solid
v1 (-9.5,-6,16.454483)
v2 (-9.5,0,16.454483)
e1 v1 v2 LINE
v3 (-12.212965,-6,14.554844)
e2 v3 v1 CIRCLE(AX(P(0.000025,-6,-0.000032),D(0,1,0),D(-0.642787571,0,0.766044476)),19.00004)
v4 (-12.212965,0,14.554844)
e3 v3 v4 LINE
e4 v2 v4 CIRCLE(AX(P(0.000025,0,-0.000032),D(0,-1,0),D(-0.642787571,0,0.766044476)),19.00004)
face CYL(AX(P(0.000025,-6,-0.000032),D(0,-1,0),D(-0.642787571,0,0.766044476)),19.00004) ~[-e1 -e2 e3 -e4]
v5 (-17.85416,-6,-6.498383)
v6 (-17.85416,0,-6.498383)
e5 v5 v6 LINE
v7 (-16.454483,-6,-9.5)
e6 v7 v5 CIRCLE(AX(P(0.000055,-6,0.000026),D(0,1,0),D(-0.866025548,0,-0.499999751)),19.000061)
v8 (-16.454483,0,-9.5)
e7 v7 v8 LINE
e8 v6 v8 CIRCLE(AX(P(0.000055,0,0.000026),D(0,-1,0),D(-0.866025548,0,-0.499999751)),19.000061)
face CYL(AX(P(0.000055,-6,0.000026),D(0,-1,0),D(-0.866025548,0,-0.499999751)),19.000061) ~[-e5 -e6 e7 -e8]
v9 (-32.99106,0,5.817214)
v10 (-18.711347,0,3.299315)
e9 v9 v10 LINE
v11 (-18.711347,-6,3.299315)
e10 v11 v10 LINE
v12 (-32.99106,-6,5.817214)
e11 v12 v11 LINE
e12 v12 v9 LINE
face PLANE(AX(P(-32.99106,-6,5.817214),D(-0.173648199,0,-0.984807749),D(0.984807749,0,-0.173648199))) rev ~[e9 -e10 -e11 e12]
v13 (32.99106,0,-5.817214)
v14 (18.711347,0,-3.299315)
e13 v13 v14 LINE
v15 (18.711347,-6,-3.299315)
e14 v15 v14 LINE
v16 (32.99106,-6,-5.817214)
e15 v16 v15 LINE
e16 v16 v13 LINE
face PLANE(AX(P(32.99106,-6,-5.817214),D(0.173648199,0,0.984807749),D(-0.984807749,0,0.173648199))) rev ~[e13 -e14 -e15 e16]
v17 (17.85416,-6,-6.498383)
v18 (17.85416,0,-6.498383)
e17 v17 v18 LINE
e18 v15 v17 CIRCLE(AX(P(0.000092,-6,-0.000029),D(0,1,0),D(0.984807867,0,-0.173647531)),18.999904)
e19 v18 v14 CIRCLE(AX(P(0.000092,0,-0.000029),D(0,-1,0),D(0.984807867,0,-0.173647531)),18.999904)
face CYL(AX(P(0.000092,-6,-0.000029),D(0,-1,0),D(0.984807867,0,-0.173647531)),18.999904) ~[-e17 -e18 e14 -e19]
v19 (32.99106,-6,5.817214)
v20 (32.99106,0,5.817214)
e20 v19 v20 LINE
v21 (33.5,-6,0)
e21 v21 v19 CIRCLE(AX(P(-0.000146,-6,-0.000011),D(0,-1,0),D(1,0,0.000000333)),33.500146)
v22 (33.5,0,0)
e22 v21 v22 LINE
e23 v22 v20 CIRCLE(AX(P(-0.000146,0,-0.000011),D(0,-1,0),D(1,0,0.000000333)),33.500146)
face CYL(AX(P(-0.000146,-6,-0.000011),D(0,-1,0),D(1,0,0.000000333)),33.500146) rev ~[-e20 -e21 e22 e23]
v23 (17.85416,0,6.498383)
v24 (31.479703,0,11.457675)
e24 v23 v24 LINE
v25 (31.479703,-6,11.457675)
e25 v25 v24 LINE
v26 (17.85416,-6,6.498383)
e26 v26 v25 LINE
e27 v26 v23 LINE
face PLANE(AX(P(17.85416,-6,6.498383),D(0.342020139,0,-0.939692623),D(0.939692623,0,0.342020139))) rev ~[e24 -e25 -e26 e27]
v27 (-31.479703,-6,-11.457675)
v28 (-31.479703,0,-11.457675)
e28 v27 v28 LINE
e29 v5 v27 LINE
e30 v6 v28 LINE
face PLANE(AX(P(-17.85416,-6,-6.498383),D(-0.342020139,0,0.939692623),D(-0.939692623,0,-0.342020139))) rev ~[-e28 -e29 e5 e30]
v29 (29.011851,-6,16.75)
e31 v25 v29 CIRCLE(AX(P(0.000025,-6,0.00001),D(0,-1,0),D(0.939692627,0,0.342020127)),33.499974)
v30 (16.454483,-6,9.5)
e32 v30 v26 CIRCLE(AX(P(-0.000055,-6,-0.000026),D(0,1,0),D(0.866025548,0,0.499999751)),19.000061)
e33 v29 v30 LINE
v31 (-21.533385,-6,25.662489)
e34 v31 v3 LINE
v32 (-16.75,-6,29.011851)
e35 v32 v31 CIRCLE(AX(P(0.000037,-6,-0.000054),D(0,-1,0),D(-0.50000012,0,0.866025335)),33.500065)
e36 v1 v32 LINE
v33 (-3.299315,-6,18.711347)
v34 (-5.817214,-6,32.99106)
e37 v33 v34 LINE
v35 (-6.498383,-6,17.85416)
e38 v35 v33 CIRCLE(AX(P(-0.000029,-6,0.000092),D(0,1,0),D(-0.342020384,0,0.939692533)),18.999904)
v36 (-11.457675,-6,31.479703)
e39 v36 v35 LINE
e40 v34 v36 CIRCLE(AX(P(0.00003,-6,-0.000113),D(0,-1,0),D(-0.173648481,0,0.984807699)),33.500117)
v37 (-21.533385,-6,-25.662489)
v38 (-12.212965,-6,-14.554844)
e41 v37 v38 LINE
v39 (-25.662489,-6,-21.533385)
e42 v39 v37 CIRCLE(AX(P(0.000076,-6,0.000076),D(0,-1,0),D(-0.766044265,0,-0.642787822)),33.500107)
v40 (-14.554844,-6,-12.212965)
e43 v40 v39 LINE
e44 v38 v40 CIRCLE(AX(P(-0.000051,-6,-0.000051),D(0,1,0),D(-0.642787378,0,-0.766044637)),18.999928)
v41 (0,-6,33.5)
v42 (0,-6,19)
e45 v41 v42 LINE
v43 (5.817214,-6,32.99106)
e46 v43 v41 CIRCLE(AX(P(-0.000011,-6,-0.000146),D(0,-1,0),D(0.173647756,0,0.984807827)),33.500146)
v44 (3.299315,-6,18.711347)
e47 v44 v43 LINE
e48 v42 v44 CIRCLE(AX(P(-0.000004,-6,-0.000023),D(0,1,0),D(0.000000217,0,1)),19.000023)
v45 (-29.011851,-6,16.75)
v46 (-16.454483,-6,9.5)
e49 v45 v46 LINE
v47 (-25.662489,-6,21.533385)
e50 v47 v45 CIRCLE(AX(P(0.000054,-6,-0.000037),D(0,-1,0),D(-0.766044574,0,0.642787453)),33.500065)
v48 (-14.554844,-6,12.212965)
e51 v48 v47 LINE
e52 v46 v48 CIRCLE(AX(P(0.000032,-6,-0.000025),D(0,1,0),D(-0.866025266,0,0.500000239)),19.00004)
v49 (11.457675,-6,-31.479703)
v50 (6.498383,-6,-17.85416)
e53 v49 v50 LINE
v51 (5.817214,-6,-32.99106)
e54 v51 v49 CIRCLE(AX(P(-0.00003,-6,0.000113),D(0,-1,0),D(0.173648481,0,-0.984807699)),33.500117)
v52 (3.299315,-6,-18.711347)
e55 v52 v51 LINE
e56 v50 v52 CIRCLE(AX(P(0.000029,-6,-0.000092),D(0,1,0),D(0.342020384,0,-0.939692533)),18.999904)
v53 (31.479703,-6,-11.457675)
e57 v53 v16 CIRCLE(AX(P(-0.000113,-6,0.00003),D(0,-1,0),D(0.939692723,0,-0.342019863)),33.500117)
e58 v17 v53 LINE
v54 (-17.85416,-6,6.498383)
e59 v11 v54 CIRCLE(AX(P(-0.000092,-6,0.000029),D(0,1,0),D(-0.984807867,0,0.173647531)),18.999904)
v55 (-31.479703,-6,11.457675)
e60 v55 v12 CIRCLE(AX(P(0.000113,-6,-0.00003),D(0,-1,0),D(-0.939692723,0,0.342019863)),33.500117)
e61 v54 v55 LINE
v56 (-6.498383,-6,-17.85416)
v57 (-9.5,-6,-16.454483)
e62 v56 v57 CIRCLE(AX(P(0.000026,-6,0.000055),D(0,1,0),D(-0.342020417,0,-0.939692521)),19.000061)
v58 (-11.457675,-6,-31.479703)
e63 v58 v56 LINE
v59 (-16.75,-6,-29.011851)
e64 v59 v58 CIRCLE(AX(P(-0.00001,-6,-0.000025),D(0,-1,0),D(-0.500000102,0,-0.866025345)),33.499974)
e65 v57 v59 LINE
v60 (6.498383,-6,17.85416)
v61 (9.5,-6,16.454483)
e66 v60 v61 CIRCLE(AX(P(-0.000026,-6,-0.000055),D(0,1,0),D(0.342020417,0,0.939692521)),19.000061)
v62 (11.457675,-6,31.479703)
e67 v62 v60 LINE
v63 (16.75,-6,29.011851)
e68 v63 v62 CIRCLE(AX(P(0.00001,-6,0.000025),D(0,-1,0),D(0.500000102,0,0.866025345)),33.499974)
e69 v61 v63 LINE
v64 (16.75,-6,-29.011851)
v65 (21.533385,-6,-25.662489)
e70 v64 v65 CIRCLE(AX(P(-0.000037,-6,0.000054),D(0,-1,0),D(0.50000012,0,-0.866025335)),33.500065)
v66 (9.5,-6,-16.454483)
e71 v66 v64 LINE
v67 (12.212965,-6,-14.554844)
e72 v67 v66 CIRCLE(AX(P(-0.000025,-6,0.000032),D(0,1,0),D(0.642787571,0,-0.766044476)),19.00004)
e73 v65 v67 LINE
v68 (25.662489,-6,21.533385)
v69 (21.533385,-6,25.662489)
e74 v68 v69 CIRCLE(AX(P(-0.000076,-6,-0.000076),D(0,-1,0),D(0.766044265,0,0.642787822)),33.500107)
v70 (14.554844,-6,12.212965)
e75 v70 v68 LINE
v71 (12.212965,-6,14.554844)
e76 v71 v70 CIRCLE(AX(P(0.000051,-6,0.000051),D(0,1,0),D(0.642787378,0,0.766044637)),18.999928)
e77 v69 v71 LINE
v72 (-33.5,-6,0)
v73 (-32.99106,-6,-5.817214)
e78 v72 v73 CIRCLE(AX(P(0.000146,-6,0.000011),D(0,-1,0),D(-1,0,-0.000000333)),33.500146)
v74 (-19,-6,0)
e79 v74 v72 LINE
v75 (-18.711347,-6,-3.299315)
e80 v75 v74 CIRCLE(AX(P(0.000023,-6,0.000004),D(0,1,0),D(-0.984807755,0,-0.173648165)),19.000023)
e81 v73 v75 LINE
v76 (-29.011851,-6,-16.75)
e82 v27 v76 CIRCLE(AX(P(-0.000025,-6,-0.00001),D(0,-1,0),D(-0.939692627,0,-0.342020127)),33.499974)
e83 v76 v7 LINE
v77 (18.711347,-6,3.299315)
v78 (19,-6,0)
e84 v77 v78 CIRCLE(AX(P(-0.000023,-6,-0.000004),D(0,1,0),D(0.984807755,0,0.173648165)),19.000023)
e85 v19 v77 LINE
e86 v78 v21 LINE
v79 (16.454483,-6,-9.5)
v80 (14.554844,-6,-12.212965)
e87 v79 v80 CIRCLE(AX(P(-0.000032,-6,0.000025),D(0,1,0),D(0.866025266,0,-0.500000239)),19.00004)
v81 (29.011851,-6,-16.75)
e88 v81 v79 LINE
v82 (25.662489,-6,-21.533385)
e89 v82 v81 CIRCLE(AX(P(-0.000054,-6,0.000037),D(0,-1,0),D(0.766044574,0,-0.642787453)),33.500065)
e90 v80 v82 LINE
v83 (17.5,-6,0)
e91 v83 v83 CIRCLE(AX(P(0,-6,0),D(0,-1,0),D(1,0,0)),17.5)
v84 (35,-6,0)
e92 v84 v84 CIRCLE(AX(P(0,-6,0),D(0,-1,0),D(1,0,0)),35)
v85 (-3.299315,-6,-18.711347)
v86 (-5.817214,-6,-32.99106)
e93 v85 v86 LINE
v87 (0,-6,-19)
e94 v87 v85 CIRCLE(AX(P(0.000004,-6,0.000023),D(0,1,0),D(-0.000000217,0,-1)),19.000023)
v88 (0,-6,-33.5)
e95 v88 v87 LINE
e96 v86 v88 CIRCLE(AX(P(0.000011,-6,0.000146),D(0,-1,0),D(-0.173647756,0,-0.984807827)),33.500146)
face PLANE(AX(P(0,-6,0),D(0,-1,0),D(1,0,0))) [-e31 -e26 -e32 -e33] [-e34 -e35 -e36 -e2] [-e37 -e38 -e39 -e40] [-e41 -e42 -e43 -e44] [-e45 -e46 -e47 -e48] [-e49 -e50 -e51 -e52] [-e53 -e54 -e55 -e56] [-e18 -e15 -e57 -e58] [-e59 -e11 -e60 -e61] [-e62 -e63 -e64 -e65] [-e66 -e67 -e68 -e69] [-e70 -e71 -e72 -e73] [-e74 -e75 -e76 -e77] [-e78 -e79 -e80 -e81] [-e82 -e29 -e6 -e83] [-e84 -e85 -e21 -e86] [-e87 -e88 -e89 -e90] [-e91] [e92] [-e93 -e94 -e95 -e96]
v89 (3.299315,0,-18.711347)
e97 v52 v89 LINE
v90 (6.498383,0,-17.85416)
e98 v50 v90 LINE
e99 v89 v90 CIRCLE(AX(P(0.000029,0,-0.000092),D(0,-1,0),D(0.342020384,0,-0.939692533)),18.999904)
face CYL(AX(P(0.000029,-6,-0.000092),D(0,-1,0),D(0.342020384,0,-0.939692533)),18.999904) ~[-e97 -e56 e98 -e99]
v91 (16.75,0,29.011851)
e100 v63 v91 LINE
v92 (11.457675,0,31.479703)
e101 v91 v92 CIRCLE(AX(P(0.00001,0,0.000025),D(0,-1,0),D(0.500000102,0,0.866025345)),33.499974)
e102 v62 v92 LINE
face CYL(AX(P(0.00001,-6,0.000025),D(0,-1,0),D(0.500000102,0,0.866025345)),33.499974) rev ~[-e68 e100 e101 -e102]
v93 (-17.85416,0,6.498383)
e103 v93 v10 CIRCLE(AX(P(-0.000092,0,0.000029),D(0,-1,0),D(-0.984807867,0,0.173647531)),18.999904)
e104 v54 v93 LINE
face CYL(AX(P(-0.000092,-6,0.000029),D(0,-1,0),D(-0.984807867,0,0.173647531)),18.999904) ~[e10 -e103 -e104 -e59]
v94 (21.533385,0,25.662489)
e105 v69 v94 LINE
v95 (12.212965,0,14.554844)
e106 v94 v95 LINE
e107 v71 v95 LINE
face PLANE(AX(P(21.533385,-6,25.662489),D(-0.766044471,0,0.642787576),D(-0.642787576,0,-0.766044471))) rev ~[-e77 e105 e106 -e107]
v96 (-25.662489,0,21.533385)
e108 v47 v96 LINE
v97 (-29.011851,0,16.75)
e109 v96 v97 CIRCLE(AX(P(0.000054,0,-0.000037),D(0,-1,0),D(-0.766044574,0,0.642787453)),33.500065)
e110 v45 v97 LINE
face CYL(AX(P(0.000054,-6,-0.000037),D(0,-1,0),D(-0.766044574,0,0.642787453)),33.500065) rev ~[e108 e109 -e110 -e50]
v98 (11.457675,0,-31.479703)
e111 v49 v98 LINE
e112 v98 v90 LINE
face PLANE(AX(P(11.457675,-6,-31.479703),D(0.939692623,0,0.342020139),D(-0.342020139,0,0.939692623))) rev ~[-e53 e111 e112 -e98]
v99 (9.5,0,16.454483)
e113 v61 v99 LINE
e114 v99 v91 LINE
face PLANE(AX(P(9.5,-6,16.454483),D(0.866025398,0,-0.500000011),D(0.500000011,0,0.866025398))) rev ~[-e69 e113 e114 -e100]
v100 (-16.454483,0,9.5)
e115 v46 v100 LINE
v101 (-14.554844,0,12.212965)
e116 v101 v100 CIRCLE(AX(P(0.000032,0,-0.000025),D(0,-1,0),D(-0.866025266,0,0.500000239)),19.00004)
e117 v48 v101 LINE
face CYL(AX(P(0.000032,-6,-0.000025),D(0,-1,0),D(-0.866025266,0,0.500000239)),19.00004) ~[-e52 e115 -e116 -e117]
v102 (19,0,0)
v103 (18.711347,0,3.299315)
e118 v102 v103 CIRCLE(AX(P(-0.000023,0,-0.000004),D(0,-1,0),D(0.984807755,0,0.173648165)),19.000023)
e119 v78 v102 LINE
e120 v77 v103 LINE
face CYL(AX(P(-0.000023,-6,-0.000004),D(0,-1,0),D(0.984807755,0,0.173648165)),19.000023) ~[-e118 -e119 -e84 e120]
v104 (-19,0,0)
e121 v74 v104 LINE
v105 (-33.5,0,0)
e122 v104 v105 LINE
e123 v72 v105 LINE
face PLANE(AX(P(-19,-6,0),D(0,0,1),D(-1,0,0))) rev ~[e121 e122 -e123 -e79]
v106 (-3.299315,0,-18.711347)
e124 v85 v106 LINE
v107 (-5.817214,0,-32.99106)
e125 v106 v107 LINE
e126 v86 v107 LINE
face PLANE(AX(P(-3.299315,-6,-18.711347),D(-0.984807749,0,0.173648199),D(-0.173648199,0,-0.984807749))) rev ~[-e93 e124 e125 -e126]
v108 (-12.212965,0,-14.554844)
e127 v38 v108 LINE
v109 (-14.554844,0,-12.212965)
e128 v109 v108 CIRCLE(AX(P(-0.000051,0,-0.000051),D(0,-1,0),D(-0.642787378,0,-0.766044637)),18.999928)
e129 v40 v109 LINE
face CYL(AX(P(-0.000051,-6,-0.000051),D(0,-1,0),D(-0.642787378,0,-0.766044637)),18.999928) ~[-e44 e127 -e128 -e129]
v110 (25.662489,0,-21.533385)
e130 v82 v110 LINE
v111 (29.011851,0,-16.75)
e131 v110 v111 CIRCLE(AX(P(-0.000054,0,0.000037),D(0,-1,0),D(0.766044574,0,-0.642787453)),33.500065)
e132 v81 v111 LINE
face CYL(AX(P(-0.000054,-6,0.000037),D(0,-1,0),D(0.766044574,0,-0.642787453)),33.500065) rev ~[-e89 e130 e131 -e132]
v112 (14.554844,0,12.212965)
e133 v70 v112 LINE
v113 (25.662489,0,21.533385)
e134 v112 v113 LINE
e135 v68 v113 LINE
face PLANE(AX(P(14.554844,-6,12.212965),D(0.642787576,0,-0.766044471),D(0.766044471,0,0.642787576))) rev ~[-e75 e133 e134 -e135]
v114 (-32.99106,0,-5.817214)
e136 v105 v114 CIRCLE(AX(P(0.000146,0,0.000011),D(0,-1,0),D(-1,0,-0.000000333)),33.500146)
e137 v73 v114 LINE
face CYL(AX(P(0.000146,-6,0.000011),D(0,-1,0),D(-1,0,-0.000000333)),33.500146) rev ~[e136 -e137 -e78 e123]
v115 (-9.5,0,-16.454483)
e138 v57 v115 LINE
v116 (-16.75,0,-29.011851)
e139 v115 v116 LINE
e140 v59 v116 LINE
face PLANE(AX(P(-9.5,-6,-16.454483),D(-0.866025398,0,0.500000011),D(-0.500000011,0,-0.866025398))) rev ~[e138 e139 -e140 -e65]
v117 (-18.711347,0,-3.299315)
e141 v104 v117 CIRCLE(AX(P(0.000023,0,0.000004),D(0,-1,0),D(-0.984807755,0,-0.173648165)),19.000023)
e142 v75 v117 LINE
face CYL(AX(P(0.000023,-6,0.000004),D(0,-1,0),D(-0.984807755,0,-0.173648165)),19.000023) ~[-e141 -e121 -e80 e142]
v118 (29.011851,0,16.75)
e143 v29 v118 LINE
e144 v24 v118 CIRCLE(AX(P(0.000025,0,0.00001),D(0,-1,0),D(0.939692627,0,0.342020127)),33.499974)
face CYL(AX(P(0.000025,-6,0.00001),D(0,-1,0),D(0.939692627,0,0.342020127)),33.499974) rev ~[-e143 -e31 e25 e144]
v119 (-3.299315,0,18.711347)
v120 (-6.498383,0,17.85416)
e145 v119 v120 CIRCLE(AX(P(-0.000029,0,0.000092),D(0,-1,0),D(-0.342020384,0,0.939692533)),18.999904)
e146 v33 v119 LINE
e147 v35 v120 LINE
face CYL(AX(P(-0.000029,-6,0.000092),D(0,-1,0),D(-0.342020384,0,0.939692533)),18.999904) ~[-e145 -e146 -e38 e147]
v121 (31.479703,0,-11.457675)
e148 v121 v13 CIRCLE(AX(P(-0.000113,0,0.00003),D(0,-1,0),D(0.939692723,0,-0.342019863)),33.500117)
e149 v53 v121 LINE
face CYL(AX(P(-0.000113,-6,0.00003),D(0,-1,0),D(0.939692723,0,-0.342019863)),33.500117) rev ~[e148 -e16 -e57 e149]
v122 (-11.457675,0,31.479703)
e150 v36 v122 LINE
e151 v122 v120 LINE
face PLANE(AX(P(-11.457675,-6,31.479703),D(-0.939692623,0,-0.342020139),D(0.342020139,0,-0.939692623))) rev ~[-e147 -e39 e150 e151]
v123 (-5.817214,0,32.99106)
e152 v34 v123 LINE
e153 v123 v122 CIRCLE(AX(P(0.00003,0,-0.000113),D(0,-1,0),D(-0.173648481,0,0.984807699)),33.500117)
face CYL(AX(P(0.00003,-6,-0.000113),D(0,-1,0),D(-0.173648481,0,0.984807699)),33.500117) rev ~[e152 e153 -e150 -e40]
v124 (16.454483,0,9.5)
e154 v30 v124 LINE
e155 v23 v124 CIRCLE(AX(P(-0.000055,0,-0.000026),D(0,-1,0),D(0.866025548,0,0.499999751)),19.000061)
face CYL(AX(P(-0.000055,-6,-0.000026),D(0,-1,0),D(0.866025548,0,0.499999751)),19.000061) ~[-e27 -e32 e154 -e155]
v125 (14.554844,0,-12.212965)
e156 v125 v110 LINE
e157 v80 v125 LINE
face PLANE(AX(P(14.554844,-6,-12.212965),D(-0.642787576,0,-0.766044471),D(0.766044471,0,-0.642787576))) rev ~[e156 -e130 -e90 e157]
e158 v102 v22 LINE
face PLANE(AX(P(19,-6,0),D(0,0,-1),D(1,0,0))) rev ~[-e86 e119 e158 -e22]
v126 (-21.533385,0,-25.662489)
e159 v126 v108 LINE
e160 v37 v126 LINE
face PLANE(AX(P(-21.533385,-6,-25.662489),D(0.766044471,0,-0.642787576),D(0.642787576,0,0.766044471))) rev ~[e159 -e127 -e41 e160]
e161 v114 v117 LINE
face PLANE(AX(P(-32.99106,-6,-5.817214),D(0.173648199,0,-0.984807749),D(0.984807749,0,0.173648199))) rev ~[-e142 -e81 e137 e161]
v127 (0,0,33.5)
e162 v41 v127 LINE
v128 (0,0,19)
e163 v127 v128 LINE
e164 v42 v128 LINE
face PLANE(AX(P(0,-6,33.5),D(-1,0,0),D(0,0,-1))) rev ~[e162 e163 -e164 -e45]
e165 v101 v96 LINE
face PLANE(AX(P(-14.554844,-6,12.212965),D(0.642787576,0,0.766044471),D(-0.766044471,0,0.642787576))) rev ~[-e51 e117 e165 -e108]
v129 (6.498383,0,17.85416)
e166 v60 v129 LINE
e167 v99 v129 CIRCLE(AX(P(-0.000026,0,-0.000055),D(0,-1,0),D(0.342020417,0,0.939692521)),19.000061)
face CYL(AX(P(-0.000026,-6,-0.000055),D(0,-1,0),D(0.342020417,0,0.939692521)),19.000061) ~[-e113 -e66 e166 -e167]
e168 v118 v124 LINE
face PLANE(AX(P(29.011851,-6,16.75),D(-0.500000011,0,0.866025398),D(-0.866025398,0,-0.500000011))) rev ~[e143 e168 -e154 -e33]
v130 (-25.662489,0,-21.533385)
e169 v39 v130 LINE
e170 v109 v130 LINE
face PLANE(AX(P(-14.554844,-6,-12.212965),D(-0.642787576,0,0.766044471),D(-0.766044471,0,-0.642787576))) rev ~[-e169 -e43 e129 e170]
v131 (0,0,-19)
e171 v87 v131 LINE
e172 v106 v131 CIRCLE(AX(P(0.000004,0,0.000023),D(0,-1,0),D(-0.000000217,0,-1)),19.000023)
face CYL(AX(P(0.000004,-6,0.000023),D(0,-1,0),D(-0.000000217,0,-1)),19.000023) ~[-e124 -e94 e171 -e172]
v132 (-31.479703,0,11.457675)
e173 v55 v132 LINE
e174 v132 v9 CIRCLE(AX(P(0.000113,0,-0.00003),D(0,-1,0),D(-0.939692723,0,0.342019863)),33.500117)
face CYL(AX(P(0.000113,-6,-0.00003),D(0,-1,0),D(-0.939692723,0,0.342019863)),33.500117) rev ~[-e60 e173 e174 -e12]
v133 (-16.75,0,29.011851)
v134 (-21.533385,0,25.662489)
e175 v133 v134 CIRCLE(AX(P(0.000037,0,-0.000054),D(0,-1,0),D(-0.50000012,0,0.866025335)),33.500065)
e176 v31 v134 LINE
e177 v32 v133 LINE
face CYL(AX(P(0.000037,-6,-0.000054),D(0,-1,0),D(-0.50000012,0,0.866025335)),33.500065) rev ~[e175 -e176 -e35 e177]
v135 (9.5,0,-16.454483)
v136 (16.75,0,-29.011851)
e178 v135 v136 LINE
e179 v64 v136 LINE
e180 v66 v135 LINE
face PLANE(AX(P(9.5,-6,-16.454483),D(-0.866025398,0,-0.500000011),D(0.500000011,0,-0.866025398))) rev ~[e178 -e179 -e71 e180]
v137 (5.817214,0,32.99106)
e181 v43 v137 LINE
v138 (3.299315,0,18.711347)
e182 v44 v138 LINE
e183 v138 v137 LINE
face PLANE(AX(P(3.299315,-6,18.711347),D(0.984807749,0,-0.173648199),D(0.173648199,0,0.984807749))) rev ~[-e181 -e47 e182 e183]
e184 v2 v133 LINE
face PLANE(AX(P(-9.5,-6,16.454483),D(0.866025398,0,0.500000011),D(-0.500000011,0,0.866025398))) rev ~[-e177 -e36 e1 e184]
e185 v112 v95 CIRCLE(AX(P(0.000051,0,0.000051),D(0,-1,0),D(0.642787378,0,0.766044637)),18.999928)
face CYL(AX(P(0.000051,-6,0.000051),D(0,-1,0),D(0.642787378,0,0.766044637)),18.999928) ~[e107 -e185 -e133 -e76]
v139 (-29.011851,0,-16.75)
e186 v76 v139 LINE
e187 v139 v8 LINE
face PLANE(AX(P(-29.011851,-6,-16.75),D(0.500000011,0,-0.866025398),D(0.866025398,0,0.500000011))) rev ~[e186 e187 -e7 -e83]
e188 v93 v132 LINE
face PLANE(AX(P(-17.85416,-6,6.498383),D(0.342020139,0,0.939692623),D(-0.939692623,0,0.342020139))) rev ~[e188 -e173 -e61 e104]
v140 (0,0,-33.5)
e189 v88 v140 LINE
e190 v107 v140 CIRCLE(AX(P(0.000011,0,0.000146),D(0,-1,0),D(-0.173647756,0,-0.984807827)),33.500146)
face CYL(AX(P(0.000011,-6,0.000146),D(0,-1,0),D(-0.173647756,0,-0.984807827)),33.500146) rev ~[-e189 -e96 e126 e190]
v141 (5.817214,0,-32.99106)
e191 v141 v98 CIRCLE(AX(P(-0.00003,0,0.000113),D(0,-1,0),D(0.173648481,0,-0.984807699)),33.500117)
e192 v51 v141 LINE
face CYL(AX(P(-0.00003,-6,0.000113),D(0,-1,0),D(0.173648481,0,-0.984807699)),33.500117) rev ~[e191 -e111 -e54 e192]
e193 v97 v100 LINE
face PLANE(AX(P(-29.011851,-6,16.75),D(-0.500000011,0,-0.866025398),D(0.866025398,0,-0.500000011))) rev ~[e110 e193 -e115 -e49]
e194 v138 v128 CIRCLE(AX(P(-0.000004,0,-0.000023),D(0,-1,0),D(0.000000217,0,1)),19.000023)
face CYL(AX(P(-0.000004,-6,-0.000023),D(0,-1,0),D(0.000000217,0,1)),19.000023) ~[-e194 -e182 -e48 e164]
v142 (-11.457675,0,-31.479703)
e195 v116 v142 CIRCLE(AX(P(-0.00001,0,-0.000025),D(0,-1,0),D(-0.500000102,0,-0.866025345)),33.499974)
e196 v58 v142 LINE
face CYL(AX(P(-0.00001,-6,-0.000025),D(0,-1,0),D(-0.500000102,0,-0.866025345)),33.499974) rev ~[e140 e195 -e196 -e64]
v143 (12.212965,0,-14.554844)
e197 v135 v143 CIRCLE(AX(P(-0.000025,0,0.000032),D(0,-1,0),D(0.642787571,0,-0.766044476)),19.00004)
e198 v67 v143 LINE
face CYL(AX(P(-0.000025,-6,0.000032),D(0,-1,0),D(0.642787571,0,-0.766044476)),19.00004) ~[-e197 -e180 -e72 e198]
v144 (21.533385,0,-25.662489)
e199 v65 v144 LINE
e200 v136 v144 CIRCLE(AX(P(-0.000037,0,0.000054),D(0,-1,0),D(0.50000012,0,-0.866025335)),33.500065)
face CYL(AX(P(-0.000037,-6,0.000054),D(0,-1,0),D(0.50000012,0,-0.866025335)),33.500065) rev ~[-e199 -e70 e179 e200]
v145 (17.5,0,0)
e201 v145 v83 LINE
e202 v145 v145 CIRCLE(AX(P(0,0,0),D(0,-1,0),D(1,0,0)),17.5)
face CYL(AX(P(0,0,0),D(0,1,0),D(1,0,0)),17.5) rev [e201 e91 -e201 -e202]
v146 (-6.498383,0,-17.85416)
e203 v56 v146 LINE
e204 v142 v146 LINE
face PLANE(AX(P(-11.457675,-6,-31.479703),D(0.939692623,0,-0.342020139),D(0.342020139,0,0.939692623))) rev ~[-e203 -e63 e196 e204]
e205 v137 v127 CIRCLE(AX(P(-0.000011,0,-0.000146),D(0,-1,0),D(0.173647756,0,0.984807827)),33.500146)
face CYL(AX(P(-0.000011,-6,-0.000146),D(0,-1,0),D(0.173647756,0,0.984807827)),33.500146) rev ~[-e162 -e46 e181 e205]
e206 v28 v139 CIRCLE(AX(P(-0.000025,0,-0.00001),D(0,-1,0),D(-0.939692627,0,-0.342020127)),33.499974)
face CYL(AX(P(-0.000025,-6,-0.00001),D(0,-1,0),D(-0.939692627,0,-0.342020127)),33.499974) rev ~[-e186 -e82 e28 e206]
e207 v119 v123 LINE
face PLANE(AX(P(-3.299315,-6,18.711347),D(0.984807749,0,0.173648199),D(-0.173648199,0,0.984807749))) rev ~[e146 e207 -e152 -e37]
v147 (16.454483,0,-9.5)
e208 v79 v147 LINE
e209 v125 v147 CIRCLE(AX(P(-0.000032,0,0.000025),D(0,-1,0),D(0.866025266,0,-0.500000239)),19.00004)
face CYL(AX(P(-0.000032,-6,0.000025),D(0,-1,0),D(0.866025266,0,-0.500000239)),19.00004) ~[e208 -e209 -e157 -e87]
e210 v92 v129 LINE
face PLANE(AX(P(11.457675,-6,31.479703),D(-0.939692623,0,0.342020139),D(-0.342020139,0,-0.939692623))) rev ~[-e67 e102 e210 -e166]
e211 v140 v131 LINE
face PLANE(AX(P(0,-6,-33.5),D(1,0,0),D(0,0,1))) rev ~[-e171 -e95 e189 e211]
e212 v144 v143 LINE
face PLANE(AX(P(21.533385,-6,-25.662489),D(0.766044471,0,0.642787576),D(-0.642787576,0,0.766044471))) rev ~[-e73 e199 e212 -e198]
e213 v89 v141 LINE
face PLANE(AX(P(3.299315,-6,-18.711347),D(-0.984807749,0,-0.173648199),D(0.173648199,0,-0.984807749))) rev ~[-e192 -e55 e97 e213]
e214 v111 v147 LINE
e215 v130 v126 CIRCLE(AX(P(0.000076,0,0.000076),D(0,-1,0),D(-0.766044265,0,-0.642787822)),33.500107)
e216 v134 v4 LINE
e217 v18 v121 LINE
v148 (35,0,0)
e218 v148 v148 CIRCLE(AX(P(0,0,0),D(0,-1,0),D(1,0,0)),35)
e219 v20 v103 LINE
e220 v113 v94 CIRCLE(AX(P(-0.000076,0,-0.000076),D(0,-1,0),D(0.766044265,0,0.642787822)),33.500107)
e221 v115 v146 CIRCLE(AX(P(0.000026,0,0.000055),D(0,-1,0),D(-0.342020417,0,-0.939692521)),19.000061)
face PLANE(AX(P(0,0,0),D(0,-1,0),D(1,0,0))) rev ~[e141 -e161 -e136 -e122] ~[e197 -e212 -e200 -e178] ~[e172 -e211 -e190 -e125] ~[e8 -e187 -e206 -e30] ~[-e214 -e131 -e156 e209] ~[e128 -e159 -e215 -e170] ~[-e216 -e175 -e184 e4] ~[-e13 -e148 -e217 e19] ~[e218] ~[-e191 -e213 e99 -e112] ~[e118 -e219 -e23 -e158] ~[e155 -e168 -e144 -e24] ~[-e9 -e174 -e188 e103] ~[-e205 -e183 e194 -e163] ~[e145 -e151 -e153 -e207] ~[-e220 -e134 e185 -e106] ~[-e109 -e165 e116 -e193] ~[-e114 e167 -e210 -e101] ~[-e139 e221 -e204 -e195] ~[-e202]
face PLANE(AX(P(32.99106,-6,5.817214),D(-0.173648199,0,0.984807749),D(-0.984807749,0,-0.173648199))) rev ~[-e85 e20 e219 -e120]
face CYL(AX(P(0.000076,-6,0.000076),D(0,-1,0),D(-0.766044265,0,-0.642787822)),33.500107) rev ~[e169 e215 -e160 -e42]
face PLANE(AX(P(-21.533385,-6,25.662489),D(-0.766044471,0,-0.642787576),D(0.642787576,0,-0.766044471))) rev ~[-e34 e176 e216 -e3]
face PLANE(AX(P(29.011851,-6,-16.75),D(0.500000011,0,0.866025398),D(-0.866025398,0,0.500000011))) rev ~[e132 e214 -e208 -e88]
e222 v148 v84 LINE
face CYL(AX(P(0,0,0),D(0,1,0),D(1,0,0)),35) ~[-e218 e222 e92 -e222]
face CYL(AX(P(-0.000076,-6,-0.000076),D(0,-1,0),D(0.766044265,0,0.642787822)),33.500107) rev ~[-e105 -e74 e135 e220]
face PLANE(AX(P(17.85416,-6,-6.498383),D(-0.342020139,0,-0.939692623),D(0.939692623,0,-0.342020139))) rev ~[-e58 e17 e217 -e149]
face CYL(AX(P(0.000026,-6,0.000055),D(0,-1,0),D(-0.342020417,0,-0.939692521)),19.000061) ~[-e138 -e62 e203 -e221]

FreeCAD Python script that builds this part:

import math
import FreeCAD as App
import Part
import Sketcher
from FreeCAD import Vector
Q = App.Units.Quantity

doc = App.newDocument("Part")
body = doc.addObject("PartDesign::Body", "Body")

# Sketch on XZ plane
sketch1 = body.newObject("Sketcher::SketchObject", "Sketch")
sketch1.AttachmentSupport = (doc.getObject("XZ_Plane"), [""])
sketch1.MapMode = "FlatFace"
sketch1.addGeometry([
    Part.Circle(Vector(0, 0, 0), Vector(0, 0, 1), 35),
    Part.Circle(Vector(0, 0, 0), Vector(0, 0, 1), 17.5),
], False)
sketch1.addConstraint([
    Sketcher.Constraint("Coincident", 0, 3, -1, 1),
    Sketcher.Constraint("Coincident", 1, 3, -1, 1),
    Sketcher.Constraint("Diameter", 0, Q("70 mm")),
    Sketcher.Constraint("Diameter", 1, Q("35 mm")),
])
pad1 = body.newObject("PartDesign::Pad", "Pad")
pad1.Profile = sketch1
pad1.Length = 6

# Sketch on XZ plane
sketch2 = body.newObject("Sketcher::SketchObject", "Sketch001")
sketch2.AttachmentSupport = (doc.getObject("XZ_Plane"), [""])
sketch2.MapMode = "FlatFace"
sketch2.AttachmentOffset = App.Placement(Vector(0, 0, 6), App.Rotation())
sketch2.addGeometry([
    Part.ArcOfCircle(Part.Circle(Vector(-0.000032, 0.000025, 0), Vector(0, 0, 1), 19.00004), math.radians(-39.999997), math.radians(-30.000016)),  # 0
    Part.LineSegment(Vector(14.554844, -12.212965, 0), Vector(25.662489, -21.533385, 0)),  # 1
    Part.ArcOfCircle(Part.Circle(Vector(-0.000054, 0.000037, 0), Vector(0, 0, 1), 33.500065), math.radians(-39.999988), math.radians(-30.000008)),  # 2
    Part.LineSegment(Vector(29.011851, -16.75, 0), Vector(16.454483, -9.5, 0)),  # 3
    Part.ArcOfCircle(Part.Circle(Vector(0.000092, -0.000029, 0), Vector(0, 0, 1), 18.999904), math.radians(-20.000015), math.radians(-9.999962)),  # 4
    Part.LineSegment(Vector(17.85416, -6.498383, 0), Vector(31.479703, -11.457675, 0)),  # 5
    Part.ArcOfCircle(Part.Circle(Vector(-0.000113, 0.00003, 0), Vector(0, 0, 1), 33.500117), math.radians(-19.999983), math.radians(-10.000018)),  # 6
    Part.LineSegment(Vector(32.99106, -5.817214, 0), Vector(18.711347, -3.299315, 0)),  # 7
    Part.ArcOfCircle(Part.Circle(Vector(-0.000023, -0.000004, 0), Vector(0, 0, 1), 19.000023), math.radians(0.000012), math.radians(9.999999)),  # 8
    Part.LineSegment(Vector(19, 0, 0), Vector(33.5, 0, 0)),  # 9
    Part.ArcOfCircle(Part.Circle(Vector(-0.000146, -0.000011, 0), Vector(0, 0, 1), 33.500146), math.radians(0.000019), math.radians(9.999975)),  # 10
    Part.LineSegment(Vector(32.99106, 5.817214, 0), Vector(18.711347, 3.299315, 0)),  # 11
    Part.ArcOfCircle(Part.Circle(Vector(-0.000055, -0.000026, 0), Vector(0, 0, 1), 19.000061), math.radians(20.000017), math.radians(29.999984)),  # 12
    Part.LineSegment(Vector(17.85416, 6.498383, 0), Vector(31.479703, 11.457675, 0)),  # 13
    Part.ArcOfCircle(Part.Circle(Vector(0.000025, 0.00001, 0), Vector(0, 0, 1), 33.499974), math.radians(19.999999), math.radians(30.000007)),  # 14
    Part.LineSegment(Vector(29.011851, 16.75, 0), Vector(16.454483, 9.5, 0)),  # 15
    Part.ArcOfCircle(Part.Circle(Vector(-0.000026, -0.000055, 0), Vector(0, 0, 1), 19.000061), math.radians(60.000016), math.radians(69.999983)),  # 16
    Part.LineSegment(Vector(9.5, 16.454483, 0), Vector(16.75, 29.011851, 0)),  # 17
    Part.ArcOfCircle(Part.Circle(Vector(0.00001, 0.000025, 0), Vector(0, 0, 1), 33.499974), math.radians(59.999993), math.radians(70.000001)),  # 18
    Part.LineSegment(Vector(11.457675, 31.479703, 0), Vector(6.498383, 17.85416, 0)),  # 19
    Part.ArcOfCircle(Part.Circle(Vector(0.000051, 0.000051, 0), Vector(0, 0, 1), 18.999928), math.radians(39.999983), math.radians(50.000017)),  # 20
    Part.LineSegment(Vector(14.554844, 12.212965, 0), Vector(25.662489, 21.533385, 0)),  # 21
    Part.ArcOfCircle(Part.Circle(Vector(-0.000076, -0.000076, 0), Vector(0, 0, 1), 33.500107), math.radians(40.000016), math.radians(49.999984)),  # 22
    Part.LineSegment(Vector(21.533385, 25.662489, 0), Vector(12.212965, 14.554844, 0)),  # 23
    Part.ArcOfCircle(Part.Circle(Vector(-0.000004, -0.000023, 0), Vector(0, 0, 1), 19.000023), math.radians(80.000001), math.radians(89.999988)),  # 24
    Part.LineSegment(Vector(3.299315, 18.711347, 0), Vector(5.817214, 32.99106, 0)),  # 25
    Part.ArcOfCircle(Part.Circle(Vector(-0.000011, -0.000146, 0), Vector(0, 0, 1), 33.500146), math.radians(80.000025), math.radians(89.999981)),  # 26
    Part.LineSegment(Vector(0, 33.5, 0), Vector(0, 19, 0)),  # 27
    Part.ArcOfCircle(Part.Circle(Vector(-0.000029, 0.000092, 0), Vector(0, 0, 1), 18.999904), math.radians(99.999962), math.radians(110.000015)),  # 28
    Part.LineSegment(Vector(-3.299315, 18.711347, 0), Vector(-5.817214, 32.99106, 0)),  # 29
    Part.ArcOfCircle(Part.Circle(Vector(0.00003, -0.000113, 0), Vector(0, 0, 1), 33.500117), math.radians(100.000018), math.radians(109.999983)),  # 30
    Part.LineSegment(Vector(-11.457675, 31.479703, 0), Vector(-6.498383, 17.85416, 0)),  # 31
    Part.ArcOfCircle(Part.Circle(Vector(0.000025, -0.000032, 0), Vector(0, 0, 1), 19.00004), math.radians(120.000016), math.radians(129.999997)),  # 32
    Part.LineSegment(Vector(-9.5, 16.454483, 0), Vector(-16.75, 29.011851, 0)),  # 33
    Part.ArcOfCircle(Part.Circle(Vector(0.000037, -0.000054, 0), Vector(0, 0, 1), 33.500065), math.radians(120.000008), math.radians(129.999988)),  # 34
    Part.LineSegment(Vector(-21.533385, 25.662489, 0), Vector(-12.212965, 14.554844, 0)),  # 35
    Part.ArcOfCircle(Part.Circle(Vector(0.000032, -0.000025, 0), Vector(0, 0, 1), 19.00004), math.radians(140.000003), math.radians(149.999984)),  # 36
    Part.LineSegment(Vector(-14.554844, 12.212965, 0), Vector(-25.662489, 21.533385, 0)),  # 37
    Part.ArcOfCircle(Part.Circle(Vector(0.000054, -0.000037, 0), Vector(0, 0, 1), 33.500065), math.radians(140.000012), math.radians(149.999992)),  # 38
    Part.LineSegment(Vector(-29.011851, 16.75, 0), Vector(-16.454483, 9.5, 0)),  # 39
    Part.ArcOfCircle(Part.Circle(Vector(-0.000092, 0.000029, 0), Vector(0, 0, 1), 18.999904), math.radians(159.999985), math.radians(170.000038)),  # 40
    Part.LineSegment(Vector(-17.85416, 6.498383, 0), Vector(-31.479703, 11.457675, 0)),  # 41
    Part.ArcOfCircle(Part.Circle(Vector(0.000113, -0.00003, 0), Vector(0, 0, 1), 33.500117), math.radians(160.000017), math.radians(169.999982)),  # 42
    Part.LineSegment(Vector(-32.99106, 5.817214, 0), Vector(-18.711347, 3.299315, 0)),  # 43
    Part.ArcOfCircle(Part.Circle(Vector(-0.000051, -0.000051, 0), Vector(0, 0, 1), 18.999928), math.radians(-140.000017), math.radians(-129.999983)),  # 44
    Part.LineSegment(Vector(-14.554844, -12.212965, 0), Vector(-25.662489, -21.533385, 0)),  # 45
    Part.ArcOfCircle(Part.Circle(Vector(0.000076, 0.000076, 0), Vector(0, 0, 1), 33.500107), math.radians(-139.999984), math.radians(-130.000016)),  # 46
    Part.LineSegment(Vector(-21.533385, -25.662489, 0), Vector(-12.212965, -14.554844, 0)),  # 47
    Part.ArcOfCircle(Part.Circle(Vector(0.000023, 0.000004, 0), Vector(0, 0, 1), 19.000023), math.radians(-179.999988), math.radians(-170.000001)),  # 48
    Part.LineSegment(Vector(-19, 0, 0), Vector(-33.5, 0, 0)),  # 49
    Part.ArcOfCircle(Part.Circle(Vector(0.000146, 0.000011, 0), Vector(0, 0, 1), 33.500146), math.radians(-179.999981), math.radians(-170.000025)),  # 50
    Part.LineSegment(Vector(-32.99106, -5.817214, 0), Vector(-18.711347, -3.299315, 0)),  # 51
    Part.ArcOfCircle(Part.Circle(Vector(0.000055, 0.000026, 0), Vector(0, 0, 1), 19.000061), math.radians(-159.999983), math.radians(-150.000016)),  # 52
    Part.LineSegment(Vector(-17.85416, -6.498383, 0), Vector(-31.479703, -11.457675, 0)),  # 53
    Part.ArcOfCircle(Part.Circle(Vector(-0.000025, -0.00001, 0), Vector(0, 0, 1), 33.499974), math.radians(-160.000001), math.radians(-149.999993)),  # 54
    Part.LineSegment(Vector(-29.011851, -16.75, 0), Vector(-16.454483, -9.5, 0)),  # 55
    Part.ArcOfCircle(Part.Circle(Vector(0.000004, 0.000023, 0), Vector(0, 0, 1), 19.000023), math.radians(-99.999999), math.radians(-90.000012)),  # 56
    Part.LineSegment(Vector(-3.299315, -18.711347, 0), Vector(-5.817214, -32.99106, 0)),  # 57
    Part.ArcOfCircle(Part.Circle(Vector(0.000011, 0.000146, 0), Vector(0, 0, 1), 33.500146), math.radians(-99.999975), math.radians(-90.000019)),  # 58
    Part.LineSegment(Vector(0, -33.5, 0), Vector(0, -19, 0)),  # 59
    Part.ArcOfCircle(Part.Circle(Vector(0.000026, 0.000055, 0), Vector(0, 0, 1), 19.000061), math.radians(-119.999984), math.radians(-110.000017)),  # 60
    Part.LineSegment(Vector(-9.5, -16.454483, 0), Vector(-16.75, -29.011851, 0)),  # 61
    Part.ArcOfCircle(Part.Circle(Vector(-0.00001, -0.000025, 0), Vector(0, 0, 1), 33.499974), math.radians(-120.000007), math.radians(-109.999999)),  # 62
    Part.LineSegment(Vector(-11.457675, -31.479703, 0), Vector(-6.498383, -17.85416, 0)),  # 63
    Part.ArcOfCircle(Part.Circle(Vector(0.000029, -0.000092, 0), Vector(0, 0, 1), 18.999904), math.radians(-80.000038), math.radians(-69.999985)),  # 64
    Part.LineSegment(Vector(3.299315, -18.711347, 0), Vector(5.817214, -32.99106, 0)),  # 65
    Part.ArcOfCircle(Part.Circle(Vector(-0.00003, 0.000113, 0), Vector(0, 0, 1), 33.500117), math.radians(-79.999982), math.radians(-70.000017)),  # 66
    Part.LineSegment(Vector(11.457675, -31.479703, 0), Vector(6.498383, -17.85416, 0)),  # 67
    Part.ArcOfCircle(Part.Circle(Vector(-0.000025, 0.000032, 0), Vector(0, 0, 1), 19.00004), math.radians(-59.999984), math.radians(-50.000003)),  # 68
    Part.LineSegment(Vector(9.5, -16.454483, 0), Vector(16.75, -29.011851, 0)),  # 69
    Part.ArcOfCircle(Part.Circle(Vector(-0.000037, 0.000054, 0), Vector(0, 0, 1), 33.500065), math.radians(-59.999992), math.radians(-50.000012)),  # 70
    Part.LineSegment(Vector(21.533385, -25.662489, 0), Vector(12.212965, -14.554844, 0)),  # 71
], False)
sketch2.addConstraint([
    Sketcher.Constraint("Coincident", 0, 1, 1, 1),
    Sketcher.Constraint("Coincident", 1, 2, 2, 1),
    Sketcher.Constraint("Coincident", 2, 2, 3, 1),
    Sketcher.Constraint("Coincident", 3, 2, 0, 2),
    Sketcher.Constraint("Coincident", 4, 1, 5, 1),
    Sketcher.Constraint("Coincident", 5, 2, 6, 1),
    Sketcher.Constraint("Coincident", 6, 2, 7, 1),
    Sketcher.Constraint("Coincident", 7, 2, 4, 2),
    Sketcher.Constraint("Coincident", 8, 1, 9, 1),
    Sketcher.Constraint("Coincident", 9, 2, 10, 1),
    Sketcher.Constraint("Coincident", 10, 2, 11, 1),
    Sketcher.Constraint("Coincident", 11, 2, 8, 2),
    Sketcher.Constraint("Coincident", 12, 1, 13, 1),
    Sketcher.Constraint("Coincident", 13, 2, 14, 1),
    Sketcher.Constraint("Coincident", 14, 2, 15, 1),
    Sketcher.Constraint("Coincident", 15, 2, 12, 2),
    Sketcher.Constraint("Coincident", 16, 1, 17, 1),
    Sketcher.Constraint("Coincident", 17, 2, 18, 1),
    Sketcher.Constraint("Coincident", 18, 2, 19, 1),
    Sketcher.Constraint("Coincident", 19, 2, 16, 2),
    Sketcher.Constraint("Coincident", 20, 1, 21, 1),
    Sketcher.Constraint("Coincident", 21, 2, 22, 1),
    Sketcher.Constraint("Coincident", 22, 2, 23, 1),
    Sketcher.Constraint("Coincident", 23, 2, 20, 2),
    Sketcher.Constraint("Coincident", 24, 1, 25, 1),
    Sketcher.Constraint("Coincident", 25, 2, 26, 1),
    Sketcher.Constraint("Coincident", 26, 2, 27, 1),
    Sketcher.Constraint("Coincident", 27, 2, 24, 2),
    Sketcher.Constraint("Coincident", 28, 1, 29, 1),
    Sketcher.Constraint("Coincident", 29, 2, 30, 1),
    Sketcher.Constraint("Coincident", 30, 2, 31, 1),
    Sketcher.Constraint("Coincident", 31, 2, 28, 2),
    Sketcher.Constraint("Coincident", 32, 1, 33, 1),
    Sketcher.Constraint("Coincident", 33, 2, 34, 1),
    Sketcher.Constraint("Coincident", 34, 2, 35, 1),
    Sketcher.Constraint("Coincident", 35, 2, 32, 2),
    Sketcher.Constraint("Coincident", 36, 1, 37, 1),
    Sketcher.Constraint("Coincident", 37, 2, 38, 1),
    Sketcher.Constraint("Coincident", 38, 2, 39, 1),
    Sketcher.Constraint("Coincident", 39, 2, 36, 2),
    Sketcher.Constraint("Coincident", 40, 1, 41, 1),
    Sketcher.Constraint("Coincident", 41, 2, 42, 1),
    Sketcher.Constraint("Coincident", 42, 2, 43, 1),
    Sketcher.Constraint("Coincident", 43, 2, 40, 2),
    Sketcher.Constraint("Coincident", 44, 1, 45, 1),
    Sketcher.Constraint("Coincident", 45, 2, 46, 1),
    Sketcher.Constraint("Coincident", 46, 2, 47, 1),
    Sketcher.Constraint("Coincident", 47, 2, 44, 2),
    Sketcher.Constraint("Coincident", 48, 1, 49, 1),
    Sketcher.Constraint("Coincident", 49, 2, 50, 1),
    Sketcher.Constraint("Coincident", 50, 2, 51, 1),
    Sketcher.Constraint("Coincident", 51, 2, 48, 2),
    Sketcher.Constraint("Coincident", 52, 1, 53, 1),
    Sketcher.Constraint("Coincident", 53, 2, 54, 1),
    Sketcher.Constraint("Coincident", 54, 2, 55, 1),
    Sketcher.Constraint("Coincident", 55, 2, 52, 2),
    Sketcher.Constraint("Coincident", 56, 1, 57, 1),
    Sketcher.Constraint("Coincident", 57, 2, 58, 1),
    Sketcher.Constraint("Coincident", 58, 2, 59, 1),
    Sketcher.Constraint("Coincident", 59, 2, 56, 2),
    Sketcher.Constraint("Coincident", 60, 1, 61, 1),
    Sketcher.Constraint("Coincident", 61, 2, 62, 1),
    Sketcher.Constraint("Coincident", 62, 2, 63, 1),
    Sketcher.Constraint("Coincident", 63, 2, 60, 2),
    Sketcher.Constraint("Coincident", 64, 1, 65, 1),
    Sketcher.Constraint("Coincident", 65, 2, 66, 1),
    Sketcher.Constraint("Coincident", 66, 2, 67, 1),
    Sketcher.Constraint("Coincident", 67, 2, 64, 2),
    Sketcher.Constraint("Coincident", 68, 1, 69, 1),
    Sketcher.Constraint("Coincident", 69, 2, 70, 1),
    Sketcher.Constraint("Coincident", 70, 2, 71, 1),
    Sketcher.Constraint("Coincident", 71, 2, 68, 2),
    Sketcher.Constraint("Horizontal", 9),
    Sketcher.Constraint("Vertical", 27),
    Sketcher.Constraint("Horizontal", 49),
    Sketcher.Constraint("Vertical", 59),
    Sketcher.Constraint("Coincident", 48, 3, 14, 3),
    Sketcher.Constraint("Coincident", 54, 3, 8, 3),
    Sketcher.Constraint("Coincident", 56, 3, 18, 3),
    Sketcher.Constraint("Coincident", 62, 3, 24, 3),
    Sketcher.Constraint("PointOnObject", 8, 1, -1),
    Sketcher.Constraint("PointOnObject", 26, 2, -2),
    Sketcher.Constraint("PointOnObject", 48, 1, -1),
    Sketcher.Constraint("PointOnObject", 58, 2, -2),
    Sketcher.Constraint("DistanceX", 9, 1, 9, 2, Q("14.5 mm")),
    Sketcher.Constraint("DistanceX", 49, 2, 49, 1, Q("14.5 mm")),
    Sketcher.Constraint("DistanceY", 27, 2, 27, 1, Q("14.5 mm")),
    Sketcher.Constraint("DistanceY", 59, 1, 59, 2, Q("14.5 mm")),
    Sketcher.Constraint("DistanceX", -1, 1, 8, 1, Q("19 mm")),
    Sketcher.Constraint("DistanceY", -1, 1, 27, 2, Q("19 mm")),
    Sketcher.Constraint("DistanceX", 48, 1, -1, 1, Q("19 mm")),
    Sketcher.Constraint("DistanceY", 59, 2, -1, 1, Q("19 mm")),
    Sketcher.Constraint("Distance", 1, Q("14.5 mm")),
    Sketcher.Constraint("Distance", 3, Q("14.5 mm")),
    Sketcher.Constraint("Distance", 5, Q("14.5 mm")),
    Sketcher.Constraint("Distance", 7, Q("14.500001 mm")),
    Sketcher.Constraint("Distance", 11, Q("14.500001 mm")),
    Sketcher.Constraint("Distance", 13, Q("14.5 mm")),
    Sketcher.Constraint("Distance", 15, Q("14.5 mm")),
    Sketcher.Constraint("Distance", 17, Q("14.5 mm")),
    Sketcher.Constraint("Distance", 19, Q("14.5 mm")),
    Sketcher.Constraint("Distance", 21, Q("14.5 mm")),
    Sketcher.Constraint("Distance", 23, Q("14.5 mm")),
    Sketcher.Constraint("Distance", 25, Q("14.500001 mm")),
    Sketcher.Constraint("Distance", 29, Q("14.500001 mm")),
    Sketcher.Constraint("Distance", 31, Q("14.5 mm")),
    Sketcher.Constraint("Distance", 33, Q("14.5 mm")),
    Sketcher.Constraint("Distance", 35, Q("14.5 mm")),
    Sketcher.Constraint("Distance", 37, Q("14.5 mm")),
    Sketcher.Constraint("Distance", 39, Q("14.5 mm")),
    Sketcher.Constraint("Distance", 41, Q("14.5 mm")),
    Sketcher.Constraint("Distance", 43, Q("14.500001 mm")),
    Sketcher.Constraint("Distance", 45, Q("14.5 mm")),
    Sketcher.Constraint("Distance", 47, Q("14.5 mm")),
    Sketcher.Constraint("Distance", 51, Q("14.500001 mm")),
    Sketcher.Constraint("Distance", 53, Q("14.5 mm")),
    Sketcher.Constraint("Distance", 55, Q("14.5 mm")),
    Sketcher.Constraint("Distance", 57, Q("14.500001 mm")),
    Sketcher.Constraint("Distance", 61, Q("14.5 mm")),
    Sketcher.Constraint("Distance", 63, Q("14.5 mm")),
    Sketcher.Constraint("Distance", 65, Q("14.500001 mm")),
    Sketcher.Constraint("Distance", 67, Q("14.5 mm")),
    Sketcher.Constraint("Distance", 69, Q("14.5 mm")),
    Sketcher.Constraint("Distance", 71, Q("14.5 mm")),
    Sketcher.Constraint("DistanceY", 3, 2, -1, 1, Q("9.5 mm")),
    Sketcher.Constraint("DistanceY", -1, 1, 15, 2, Q("9.5 mm")),
    Sketcher.Constraint("DistanceX", -1, 1, 16, 1, Q("9.5 mm")),
    Sketcher.Constraint("DistanceX", 32, 1, -1, 1, Q("9.5 mm")),
    Sketcher.Constraint("DistanceY", -1, 1, 39, 2, Q("9.5 mm")),
    Sketcher.Constraint("DistanceY", 55, 2, -1, 1, Q("9.5 mm")),
    Sketcher.Constraint("DistanceX", 60, 1, -1, 1, Q("9.5 mm")),
    Sketcher.Constraint("DistanceX", -1, 1, 68, 1, Q("9.5 mm")),
    Sketcher.Constraint("DistanceY", 2, 2, -1, 1, Q("16.75 mm")),
    Sketcher.Constraint("DistanceY", -1, 1, 14, 2, Q("16.75 mm")),
    Sketcher.Constraint("DistanceX", -1, 1, 17, 2, Q("16.75 mm")),
    Sketcher.Constraint("DistanceX", 33, 2, -1, 1, Q("16.75 mm")),
    Sketcher.Constraint("DistanceY", -1, 1, 38, 2, Q("16.75 mm")),
    Sketcher.Constraint("DistanceY", 54, 2, -1, 1, Q("16.75 mm")),
    Sketcher.Constraint("DistanceX", 61, 2, -1, 1, Q("16.75 mm")),
    Sketcher.Constraint("DistanceX", -1, 1, 69, 2, Q("16.75 mm")),
    Sketcher.Constraint("Radius", 0, Q("19.00004 mm")),
    Sketcher.Constraint("Radius", 12, Q("19.000061 mm")),
    Sketcher.Constraint("Radius", 16, Q("19.000061 mm")),
    Sketcher.Constraint("Radius", 32, Q("19.00004 mm")),
    Sketcher.Constraint("Radius", 36, Q("19.00004 mm")),
    Sketcher.Constraint("Radius", 52, Q("19.000061 mm")),
    Sketcher.Constraint("Radius", 60, Q("19.000061 mm")),
    Sketcher.Constraint("Radius", 68, Q("19.00004 mm")),
    Sketcher.Constraint("Radius", 2, Q("33.500065 mm")),
    Sketcher.Constraint("Radius", 4, Q("18.999904 mm")),
    Sketcher.Constraint("Radius", 6, Q("33.500117 mm")),
    Sketcher.Constraint("Radius", 8, Q("19.000023 mm")),
    Sketcher.Constraint("Radius", 10, Q("33.500146 mm")),
    Sketcher.Constraint("Radius", 14, Q("33.499974 mm")),
    Sketcher.Constraint("Radius", 18, Q("33.499974 mm")),
    Sketcher.Constraint("Radius", 20, Q("18.999928 mm")),
    Sketcher.Constraint("Radius", 22, Q("33.500107 mm")),
    Sketcher.Constraint("Radius", 24, Q("19.000023 mm")),
    Sketcher.Constraint("Radius", 26, Q("33.500146 mm")),
    Sketcher.Constraint("Radius", 28, Q("18.999904 mm")),
    Sketcher.Constraint("Radius", 30, Q("33.500117 mm")),
    Sketcher.Constraint("Radius", 34, Q("33.500065 mm")),
    Sketcher.Constraint("Radius", 38, Q("33.500065 mm")),
    Sketcher.Constraint("Radius", 40, Q("18.999904 mm")),
    Sketcher.Constraint("Radius", 42, Q("33.500117 mm")),
    Sketcher.Constraint("Radius", 44, Q("18.999928 mm")),
    Sketcher.Constraint("Radius", 46, Q("33.500107 mm")),
    Sketcher.Constraint("Radius", 48, Q("19.000023 mm")),
    Sketcher.Constraint("Radius", 50, Q("33.500146 mm")),
    Sketcher.Constraint("Radius", 54, Q("33.499974 mm")),
    Sketcher.Constraint("Radius", 56, Q("19.000023 mm")),
    Sketcher.Constraint("Radius", 58, Q("33.500146 mm")),
    Sketcher.Constraint("Radius", 62, Q("33.499974 mm")),
    Sketcher.Constraint("Radius", 64, Q("18.999904 mm")),
    Sketcher.Constraint("Radius", 66, Q("33.500117 mm")),
    Sketcher.Constraint("Radius", 70, Q("33.500065 mm")),
    Sketcher.Constraint("DistanceX", -1, 1, 1, 2, Q("25.662489 mm")),
    Sketcher.Constraint("DistanceX", -1, 1, 2, 2, Q("29.011851 mm")),
    Sketcher.Constraint("DistanceX", -1, 1, 4, 1, Q("17.85416 mm")),
    Sketcher.Constraint("DistanceX", -1, 1, 6, 2, Q("32.99106 mm")),
    Sketcher.Constraint("DistanceX", -1, 1, 10, 2, Q("32.99106 mm")),
    Sketcher.Constraint("DistanceX", -1, 1, 12, 1, Q("17.85416 mm")),
    Sketcher.Constraint("DistanceX", -1, 1, 14, 2, Q("29.011851 mm")),
    Sketcher.Constraint("DistanceY", -1, 1, 17, 2, Q("29.011851 mm")),
    Sketcher.Constraint("DistanceY", -1, 1, 19, 2, Q("17.85416 mm")),
    Sketcher.Constraint("DistanceX", -1, 1, 21, 2, Q("25.662489 mm")),
    Sketcher.Constraint("DistanceY", -1, 1, 22, 2, Q("25.662489 mm")),
    Sketcher.Constraint("DistanceY", -1, 1, 25, 2, Q("32.99106 mm")),
    Sketcher.Constraint("DistanceY", -1, 1, 29, 2, Q("32.99106 mm")),
    Sketcher.Constraint("DistanceY", -1, 1, 31, 2, Q("17.85416 mm")),
    Sketcher.Constraint("DistanceY", -1, 1, 33, 2, Q("29.011851 mm")),
    Sketcher.Constraint("DistanceY", -1, 1, 34, 2, Q("25.662489 mm")),
    Sketcher.Constraint("DistanceX", 37, 2, -1, 1, Q("25.662489 mm")),
    Sketcher.Constraint("DistanceX", 38, 2, -1, 1, Q("29.011851 mm")),
    Sketcher.Constraint("DistanceX", 40, 1, -1, 1, Q("17.85416 mm")),
    Sketcher.Constraint("DistanceX", 42, 2, -1, 1, Q("32.99106 mm")),
    Sketcher.Constraint("DistanceX", 45, 2, -1, 1, Q("25.662489 mm")),
    Sketcher.Constraint("DistanceY", 46, 2, -1, 1, Q("25.662489 mm")),
    Sketcher.Constraint("DistanceX", 50, 2, -1, 1, Q("32.99106 mm")),
    Sketcher.Constraint("DistanceX", 52, 1, -1, 1, Q("17.85416 mm")),
    Sketcher.Constraint("DistanceX", 54, 2, -1, 1, Q("29.011851 mm")),
    Sketcher.Constraint("DistanceY", 57, 2, -1, 1, Q("32.99106 mm")),
    Sketcher.Constraint("DistanceY", 61, 2, -1, 1, Q("29.011851 mm")),
    Sketcher.Constraint("DistanceY", 63, 2, -1, 1, Q("17.85416 mm")),
    Sketcher.Constraint("DistanceY", 65, 2, -1, 1, Q("32.99106 mm")),
    Sketcher.Constraint("DistanceY", 67, 2, -1, 1, Q("17.85416 mm")),
    Sketcher.Constraint("DistanceY", 69, 2, -1, 1, Q("29.011851 mm")),
    Sketcher.Constraint("DistanceY", 70, 2, -1, 1, Q("25.662489 mm")),
    Sketcher.Constraint("DistanceX", 6, 3, -1, 1, Q("0.000113 mm")),
    Sketcher.Constraint("DistanceY", 30, 3, -1, 1, Q("0.000113 mm")),
    Sketcher.Constraint("DistanceX", -1, 1, 42, 3, Q("0.000113 mm")),
    Sketcher.Constraint("DistanceY", -1, 1, 66, 3, Q("0.000113 mm")),
    Sketcher.Constraint("DistanceX", -1, 1, 0, 1, Q("14.554844 mm")),
    Sketcher.Constraint("DistanceY", 0, 1, -1, 1, Q("12.212965 mm")),
    Sketcher.Constraint("DistanceY", 4, 1, -1, 1, Q("6.498383 mm")),
    Sketcher.Constraint("DistanceX", -1, 1, 5, 2, Q("31.479703 mm")),
    Sketcher.Constraint("DistanceX", -1, 1, 7, 2, Q("18.711347 mm")),
    Sketcher.Constraint("DistanceX", -1, 1, 11, 2, Q("18.711347 mm")),
    Sketcher.Constraint("DistanceX", -1, 1, 13, 2, Q("31.479703 mm")),
    Sketcher.Constraint("DistanceX", -1, 1, 18, 2, Q("11.457675 mm")),
    Sketcher.Constraint("DistanceX", -1, 1, 20, 1, Q("14.554844 mm")),
    Sketcher.Constraint("DistanceY", -1, 1, 20, 1, Q("12.212965 mm")),
    Sketcher.Constraint("DistanceX", -1, 1, 22, 2, Q("21.533385 mm")),
    Sketcher.Constraint("DistanceX", -1, 1, 23, 2, Q("12.212965 mm")),
    Sketcher.Constraint("DistanceX", -1, 1, 24, 1, Q("3.299315 mm")),
    Sketcher.Constraint("DistanceX", 28, 1, -1, 1, Q("3.299315 mm")),
    Sketcher.Constraint("DistanceY", -1, 1, 28, 1, Q("18.711347 mm")),
    Sketcher.Constraint("DistanceX", 30, 2, -1, 1, Q("11.457675 mm")),
    Sketcher.Constraint("DistanceX", 34, 2, -1, 1, Q("21.533385 mm")),
    Sketcher.Constraint("DistanceX", 35, 2, -1, 1, Q("12.212965 mm")),
    Sketcher.Constraint("DistanceX", 36, 1, -1, 1, Q("14.554844 mm")),
    Sketcher.Constraint("DistanceY", -1, 1, 36, 1, Q("12.212965 mm")),
    Sketcher.Constraint("DistanceY", -1, 1, 40, 1, Q("6.498383 mm")),
    Sketcher.Constraint("DistanceX", 41, 2, -1, 1, Q("31.479703 mm")),
    Sketcher.Constraint("DistanceX", 43, 2, -1, 1, Q("18.711347 mm")),
    Sketcher.Constraint("DistanceX", 44, 1, -1, 1, Q("14.554844 mm")),
    Sketcher.Constraint("DistanceY", 44, 1, -1, 1, Q("12.212965 mm")),
    Sketcher.Constraint("DistanceX", 46, 2, -1, 1, Q("21.533385 mm")),
    Sketcher.Constraint("DistanceX", 47, 2, -1, 1, Q("12.212965 mm")),
    Sketcher.Constraint("DistanceX", 51, 2, -1, 1, Q("18.711347 mm")),
    Sketcher.Constraint("DistanceX", 53, 2, -1, 1, Q("31.479703 mm")),
    Sketcher.Constraint("DistanceX", 56, 1, -1, 1, Q("3.299315 mm")),
    Sketcher.Constraint("DistanceX", 62, 2, -1, 1, Q("11.457675 mm")),
    Sketcher.Constraint("DistanceX", -1, 1, 64, 1, Q("3.299315 mm")),
    Sketcher.Constraint("DistanceY", 64, 1, -1, 1, Q("18.711347 mm")),
    Sketcher.Constraint("DistanceX", -1, 1, 66, 2, Q("11.457675 mm")),
    Sketcher.Constraint("DistanceX", -1, 1, 70, 2, Q("21.533385 mm")),
    Sketcher.Constraint("DistanceX", -1, 1, 71, 2, Q("12.212965 mm")),
])
pocket1 = body.newObject("PartDesign::Pocket", "Pocket")
pocket1.Profile = sketch2
pocket1.Type = "ThroughAll"

doc.recompute()
